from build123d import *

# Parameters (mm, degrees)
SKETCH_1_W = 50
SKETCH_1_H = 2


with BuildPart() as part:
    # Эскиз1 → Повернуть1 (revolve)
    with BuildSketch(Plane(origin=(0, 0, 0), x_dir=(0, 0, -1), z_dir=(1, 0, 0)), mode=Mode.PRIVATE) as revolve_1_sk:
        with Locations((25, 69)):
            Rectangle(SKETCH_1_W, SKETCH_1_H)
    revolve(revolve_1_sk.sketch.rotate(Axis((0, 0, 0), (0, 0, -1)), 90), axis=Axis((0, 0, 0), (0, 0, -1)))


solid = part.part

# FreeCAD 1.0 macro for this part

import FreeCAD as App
import Part
import Sketcher

V = App.Vector


def add_polygon(sketch, points):
    """Adds a closed chain of lines whose ends are joined by coincident constraints."""
    first, n = sketch.GeometryCount, len(points)
    for a, b in zip(points, points[1:] + points[:1]):
        sketch.addGeometry(Part.LineSegment(App.Vector(*a, 0), App.Vector(*b, 0)), False)
    for i in range(n):
        sketch.addConstraint(Sketcher.Constraint("Coincident", first + i, 2, first + (i + 1) % n, 1))

doc = App.newDocument("Part")
body = doc.addObject("PartDesign::Body", "Body")

# Sketch on YZ plane
sketch1 = doc.addObject("Sketcher::SketchObject", "Sketch")
body.addObject(sketch1)
sketch1.AttachmentSupport = (doc.YZ_Plane, [""])
sketch1.MapMode = "FlatFace"
add_polygon(sketch1, [(70, 0), (68, 0), (68, -50), (70, -50)])  # lines 0-3
sketch1.addConstraint(Sketcher.Constraint("Horizontal", 0))
sketch1.addConstraint(Sketcher.Constraint("Vertical", 1))
sketch1.addConstraint(Sketcher.Constraint("Horizontal", 2))
sketch1.addConstraint(Sketcher.Constraint("Vertical", 3))
sketch1.addConstraint(Sketcher.Constraint("PointOnObject", 0, 2, -1))
sketch1.addConstraint(Sketcher.Constraint("DistanceX", 0, 2, 0, 1, 2.0))
sketch1.addConstraint(Sketcher.Constraint("DistanceY", 1, 2, 1, 1, 50.0))
sketch1.addConstraint(Sketcher.Constraint("DistanceX", -1, 1, 0, 2, 68.0))
revolution = doc.addObject("PartDesign::Revolution", "Revolution")
body.addObject(revolution)
revolution.Profile = sketch1
revolution.ReferenceAxis = (sketch1, ["V_Axis"])
revolution.Angle = 360

doc.recompute()
